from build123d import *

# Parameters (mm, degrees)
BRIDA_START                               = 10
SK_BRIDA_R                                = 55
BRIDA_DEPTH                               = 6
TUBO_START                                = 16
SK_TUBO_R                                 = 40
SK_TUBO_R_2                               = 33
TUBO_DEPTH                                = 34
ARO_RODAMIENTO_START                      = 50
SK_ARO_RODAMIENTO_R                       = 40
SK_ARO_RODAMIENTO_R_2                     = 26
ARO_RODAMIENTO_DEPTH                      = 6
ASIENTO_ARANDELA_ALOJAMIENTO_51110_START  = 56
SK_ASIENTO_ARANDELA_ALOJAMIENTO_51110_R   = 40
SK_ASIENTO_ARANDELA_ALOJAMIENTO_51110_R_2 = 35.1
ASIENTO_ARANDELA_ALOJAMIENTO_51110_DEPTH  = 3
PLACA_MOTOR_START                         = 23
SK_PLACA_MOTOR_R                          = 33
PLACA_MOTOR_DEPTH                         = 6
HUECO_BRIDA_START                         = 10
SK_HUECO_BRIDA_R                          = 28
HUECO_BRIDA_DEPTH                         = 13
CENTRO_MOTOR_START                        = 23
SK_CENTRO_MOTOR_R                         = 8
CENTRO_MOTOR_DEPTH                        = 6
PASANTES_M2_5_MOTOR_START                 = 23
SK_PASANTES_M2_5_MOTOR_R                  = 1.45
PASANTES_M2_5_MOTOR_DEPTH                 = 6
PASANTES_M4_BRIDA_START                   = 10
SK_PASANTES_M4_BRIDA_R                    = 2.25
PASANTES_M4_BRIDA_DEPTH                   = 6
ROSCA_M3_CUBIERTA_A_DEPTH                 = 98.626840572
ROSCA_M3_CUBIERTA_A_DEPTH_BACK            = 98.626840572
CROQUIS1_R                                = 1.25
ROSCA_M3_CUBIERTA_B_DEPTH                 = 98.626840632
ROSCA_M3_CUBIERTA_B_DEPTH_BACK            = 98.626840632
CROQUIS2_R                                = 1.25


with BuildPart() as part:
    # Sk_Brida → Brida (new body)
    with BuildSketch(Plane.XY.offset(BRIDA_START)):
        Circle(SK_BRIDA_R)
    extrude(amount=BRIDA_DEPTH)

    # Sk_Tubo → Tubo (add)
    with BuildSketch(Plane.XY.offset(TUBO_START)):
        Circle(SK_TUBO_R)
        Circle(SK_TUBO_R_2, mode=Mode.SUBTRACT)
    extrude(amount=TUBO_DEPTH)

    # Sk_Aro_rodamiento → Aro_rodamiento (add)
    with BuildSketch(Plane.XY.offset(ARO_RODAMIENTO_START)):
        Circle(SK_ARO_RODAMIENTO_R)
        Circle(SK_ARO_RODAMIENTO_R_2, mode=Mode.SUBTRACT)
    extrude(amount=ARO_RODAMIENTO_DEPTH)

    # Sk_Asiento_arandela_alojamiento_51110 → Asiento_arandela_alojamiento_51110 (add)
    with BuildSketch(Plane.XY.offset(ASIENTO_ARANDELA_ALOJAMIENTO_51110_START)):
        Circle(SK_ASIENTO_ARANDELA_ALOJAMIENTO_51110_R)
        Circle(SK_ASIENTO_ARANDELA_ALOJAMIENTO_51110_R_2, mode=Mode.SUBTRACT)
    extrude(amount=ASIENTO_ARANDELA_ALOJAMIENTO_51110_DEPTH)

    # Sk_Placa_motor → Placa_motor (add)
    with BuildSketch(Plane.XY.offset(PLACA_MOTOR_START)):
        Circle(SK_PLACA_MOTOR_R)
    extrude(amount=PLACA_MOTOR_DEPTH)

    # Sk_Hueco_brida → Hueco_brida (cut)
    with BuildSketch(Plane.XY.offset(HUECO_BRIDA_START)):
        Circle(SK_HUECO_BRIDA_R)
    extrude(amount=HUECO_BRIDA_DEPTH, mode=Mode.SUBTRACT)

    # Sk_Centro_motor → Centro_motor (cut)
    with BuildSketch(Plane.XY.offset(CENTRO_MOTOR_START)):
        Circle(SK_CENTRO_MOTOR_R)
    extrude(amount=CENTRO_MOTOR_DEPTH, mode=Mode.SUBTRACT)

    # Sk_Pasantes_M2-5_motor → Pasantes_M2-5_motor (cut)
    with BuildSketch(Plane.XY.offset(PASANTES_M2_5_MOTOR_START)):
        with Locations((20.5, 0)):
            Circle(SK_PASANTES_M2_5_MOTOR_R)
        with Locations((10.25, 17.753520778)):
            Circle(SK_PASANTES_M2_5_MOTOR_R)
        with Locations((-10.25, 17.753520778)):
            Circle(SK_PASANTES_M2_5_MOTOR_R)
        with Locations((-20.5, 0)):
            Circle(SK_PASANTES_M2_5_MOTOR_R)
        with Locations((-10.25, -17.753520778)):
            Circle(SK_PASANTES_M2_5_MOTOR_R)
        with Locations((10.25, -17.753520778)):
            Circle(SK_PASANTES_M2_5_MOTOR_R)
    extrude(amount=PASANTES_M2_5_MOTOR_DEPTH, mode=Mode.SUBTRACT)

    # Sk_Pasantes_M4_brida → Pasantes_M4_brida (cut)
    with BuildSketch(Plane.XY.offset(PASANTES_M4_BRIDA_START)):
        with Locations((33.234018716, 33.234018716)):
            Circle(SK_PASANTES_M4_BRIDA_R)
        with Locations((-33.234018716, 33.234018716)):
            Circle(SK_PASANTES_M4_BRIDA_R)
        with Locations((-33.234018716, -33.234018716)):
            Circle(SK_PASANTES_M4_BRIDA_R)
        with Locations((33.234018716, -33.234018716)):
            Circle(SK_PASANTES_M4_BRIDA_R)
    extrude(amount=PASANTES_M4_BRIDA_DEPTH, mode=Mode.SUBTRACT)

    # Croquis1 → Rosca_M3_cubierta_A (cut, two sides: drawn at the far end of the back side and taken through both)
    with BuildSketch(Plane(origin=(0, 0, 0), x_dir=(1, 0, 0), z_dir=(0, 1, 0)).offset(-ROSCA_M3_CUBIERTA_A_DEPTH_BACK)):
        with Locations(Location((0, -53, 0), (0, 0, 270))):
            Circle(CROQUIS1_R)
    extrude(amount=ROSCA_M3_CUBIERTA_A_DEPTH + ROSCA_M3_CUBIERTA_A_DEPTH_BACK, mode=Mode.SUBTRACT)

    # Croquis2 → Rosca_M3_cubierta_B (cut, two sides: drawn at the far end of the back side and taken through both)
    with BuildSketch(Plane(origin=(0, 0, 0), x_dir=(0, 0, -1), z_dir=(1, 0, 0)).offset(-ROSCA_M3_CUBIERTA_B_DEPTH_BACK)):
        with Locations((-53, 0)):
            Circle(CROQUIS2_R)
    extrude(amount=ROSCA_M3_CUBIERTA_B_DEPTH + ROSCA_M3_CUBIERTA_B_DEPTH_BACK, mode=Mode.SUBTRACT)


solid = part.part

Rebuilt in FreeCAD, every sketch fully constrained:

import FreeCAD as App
import Part
import Sketcher

doc = App.newDocument("Part")
body = doc.addObject("PartDesign::Body", "Body")

sketch1 = doc.addObject("Sketcher::SketchObject", "Sketch")
body.addObject(sketch1)
sketch1.AttachmentSupport = (doc.XY_Plane, [""])
sketch1.MapMode = "FlatFace"
sketch1.AttachmentOffset = App.Placement(App.Vector(0, 0, 10), App.Rotation())
sketch1.addGeometry(Part.Circle(App.Vector(0, 0, 0), App.Vector(0, 0, 1), 55), False)
sketch1.addConstraint([
    Sketcher.Constraint("Coincident", 0, 3, -1, 1),
    Sketcher.Constraint("Diameter", 0, 110.0),
])
pad1 = doc.addObject("PartDesign::Pad", "Pad")
body.addObject(pad1)
pad1.Profile = sketch1
pad1.Length = 6

sketch2 = doc.addObject("Sketcher::SketchObject", "Sketch001")
body.addObject(sketch2)
sketch2.AttachmentSupport = (doc.XY_Plane, [""])
sketch2.MapMode = "FlatFace"
sketch2.AttachmentOffset = App.Placement(App.Vector(0, 0, 16), App.Rotation())
sketch2.addGeometry([
    Part.Circle(App.Vector(0, 0, 0), App.Vector(0, 0, 1), 40),
    Part.Circle(App.Vector(0, 0, 0), App.Vector(0, 0, 1), 33),
], False)
sketch2.addConstraint([
    Sketcher.Constraint("Coincident", 0, 3, -1, 1),
    Sketcher.Constraint("Coincident", 1, 3, -1, 1),
    Sketcher.Constraint("Diameter", 0, 80.0),
    Sketcher.Constraint("Diameter", 1, 66.0),
])
pad2 = doc.addObject("PartDesign::Pad", "Pad001")
body.addObject(pad2)
pad2.Profile = sketch2
pad2.Length = 34

sketch3 = doc.addObject("Sketcher::SketchObject", "Sketch002")
body.addObject(sketch3)
sketch3.AttachmentSupport = (doc.XY_Plane, [""])
sketch3.MapMode = "FlatFace"
sketch3.AttachmentOffset = App.Placement(App.Vector(0, 0, 50), App.Rotation())
sketch3.addGeometry([
    Part.Circle(App.Vector(0, 0, 0), App.Vector(0, 0, 1), 40),
    Part.Circle(App.Vector(0, 0, 0), App.Vector(0, 0, 1), 26),
], False)
sketch3.addConstraint([
    Sketcher.Constraint("Coincident", 0, 3, -1, 1),
    Sketcher.Constraint("Coincident", 1, 3, -1, 1),
    Sketcher.Constraint("Diameter", 0, 80.0),
    Sketcher.Constraint("Diameter", 1, 52.0),
])
pad3 = doc.addObject("PartDesign::Pad", "Pad002")
body.addObject(pad3)
pad3.Profile = sketch3
pad3.Length = 6

sketch4 = doc.addObject("Sketcher::SketchObject", "Sketch003")
body.addObject(sketch4)
sketch4.AttachmentSupport = (doc.XY_Plane, [""])
sketch4.MapMode = "FlatFace"
sketch4.AttachmentOffset = App.Placement(App.Vector(0, 0, 56), App.Rotation())
sketch4.addGeometry([
    Part.Circle(App.Vector(0, 0, 0), App.Vector(0, 0, 1), 40),
    Part.Circle(App.Vector(0, 0, 0), App.Vector(0, 0, 1), 35),
], False)
sketch4.addConstraint([
    Sketcher.Constraint("Coincident", 0, 3, -1, 1),
    Sketcher.Constraint("Coincident", 1, 3, -1, 1),
    Sketcher.Constraint("Diameter", 0, 80.0),
    Sketcher.Constraint("Diameter", 1, 70.2),
])
pad4 = doc.addObject("PartDesign::Pad", "Pad003")
body.addObject(pad4)
pad4.Profile = sketch4
pad4.Length = 3

sketch5 = doc.addObject("Sketcher::SketchObject", "Sketch004")
body.addObject(sketch5)
sketch5.AttachmentSupport = (doc.XY_Plane, [""])
sketch5.MapMode = "FlatFace"
sketch5.AttachmentOffset = App.Placement(App.Vector(0, 0, 23), App.Rotation())
sketch5.addGeometry(Part.Circle(App.Vector(0, 0, 0), App.Vector(0, 0, 1), 33), False)
sketch5.addConstraint([
    Sketcher.Constraint("Coincident", 0, 3, -1, 1),
    Sketcher.Constraint("Diameter", 0, 66.0),
])
pad5 = doc.addObject("PartDesign::Pad", "Pad004")
body.addObject(pad5)
pad5.Profile = sketch5
pad5.Length = 6

sketch6 = doc.addObject("Sketcher::SketchObject", "Sketch005")
body.addObject(sketch6)
sketch6.AttachmentSupport = (doc.XY_Plane, [""])
sketch6.MapMode = "FlatFace"
sketch6.AttachmentOffset = App.Placement(App.Vector(0, 0, 10), App.Rotation())
sketch6.addGeometry(Part.Circle(App.Vector(0, 0, 0), App.Vector(0, 0, 1), 28), False)
sketch6.addConstraint([
    Sketcher.Constraint("Coincident", 0, 3, -1, 1),
    Sketcher.Constraint("Diameter", 0, 56.0),
])
pocket1 = doc.addObject("PartDesign::Pocket", "Pocket")
body.addObject(pocket1)
pocket1.Profile = sketch6
pocket1.Length = 13
pocket1.Reversed = True

sketch7 = doc.addObject("Sketcher::SketchObject", "Sketch006")
body.addObject(sketch7)
sketch7.AttachmentSupport = (doc.XY_Plane, [""])
sketch7.MapMode = "FlatFace"
sketch7.AttachmentOffset = App.Placement(App.Vector(0, 0, 23), App.Rotation())
sketch7.addGeometry(Part.Circle(App.Vector(0, 0, 0), App.Vector(0, 0, 1), 8), False)
sketch7.addConstraint([
    Sketcher.Constraint("Coincident", 0, 3, -1, 1),
    Sketcher.Constraint("Diameter", 0, 16.0),
])
pocket2 = doc.addObject("PartDesign::Pocket", "Pocket001")
body.addObject(pocket2)
pocket2.Profile = sketch7
pocket2.Length = 6
pocket2.Reversed = True

sketch8 = doc.addObject("Sketcher::SketchObject", "Sketch007")
body.addObject(sketch8)
sketch8.AttachmentSupport = (doc.XY_Plane, [""])
sketch8.MapMode = "FlatFace"
sketch8.AttachmentOffset = App.Placement(App.Vector(0, 0, 23), App.Rotation())
sketch8.addGeometry([
    Part.Circle(App.Vector(20.5, 0, 0), App.Vector(0, 0, 1), 1.4),
    Part.Circle(App.Vector(10.2, 17.8, 0), App.Vector(0, 0, 1), 1.4),
    Part.Circle(App.Vector(-10.2, 17.8, 0), App.Vector(0, 0, 1), 1.4),
    Part.Circle(App.Vector(-20.5, 0, 0), App.Vector(0, 0, 1), 1.4),
    Part.Circle(App.Vector(-10.2, -17.8, 0), App.Vector(0, 0, 1), 1.4),
    Part.Circle(App.Vector(10.2, -17.8, 0), App.Vector(0, 0, 1), 1.4),
], False)
sketch8.addConstraint([
    Sketcher.Constraint("Equal", 0, 1),
    Sketcher.Constraint("Equal", 1, 2),
    Sketcher.Constraint("Equal", 2, 3),
    Sketcher.Constraint("Equal", 3, 4),
    Sketcher.Constraint("Equal", 4, 5),
    Sketcher.Constraint("Symmetric", 0, 3, 3, 3, -1, 1),
    Sketcher.Constraint("Symmetric", 1, 3, 4, 3, -1, 1),
    Sketcher.Constraint("Symmetric", 2, 3, 5, 3, -1, 1),
    Sketcher.Constraint("Symmetric", 1, 3, 2, 3, -2),
    Sketcher.Constraint("PointOnObject", 0, 3, -1),
    Sketcher.Constraint("Diameter", 0, 2.9),
    Sketcher.Constraint("DistanceX", 3, 3, 0, 3, 41.0),
    Sketcher.Constraint("DistanceX", 2, 3, 1, 3, 20.5),
    Sketcher.Constraint("DistanceY", -1, 1, 1, 3, 17.753521),
])
pocket3 = doc.addObject("PartDesign::Pocket", "Pocket002")
body.addObject(pocket3)
pocket3.Profile = sketch8
pocket3.Length = 6
pocket3.Reversed = True

sketch9 = doc.addObject("Sketcher::SketchObject", "Sketch008")
body.addObject(sketch9)
sketch9.AttachmentSupport = (doc.XY_Plane, [""])
sketch9.MapMode = "FlatFace"
sketch9.AttachmentOffset = App.Placement(App.Vector(0, 0, 10), App.Rotation())
sketch9.addGeometry([
    Part.Circle(App.Vector(33.2, 33.2, 0), App.Vector(0, 0, 1), 2.2),
    Part.Circle(App.Vector(-33.2, 33.2, 0), App.Vector(0, 0, 1), 2.2),
    Part.Circle(App.Vector(-33.2, -33.2, 0), App.Vector(0, 0, 1), 2.2),
    Part.Circle(App.Vector(33.2, -33.2, 0), App.Vector(0, 0, 1), 2.2),
], False)
sketch9.addConstraint([
    Sketcher.Constraint("Equal", 0, 1),
    Sketcher.Constraint("Equal", 1, 2),
    Sketcher.Constraint("Equal", 2, 3),
    Sketcher.Constraint("Symmetric", 0, 3, 2, 3, -1, 1),
    Sketcher.Constraint("Symmetric", 1, 3, 3, 3, -1, 1),
    Sketcher.Constraint("Symmetric", 0, 3, 1, 3, -2),
    Sketcher.Constraint("Diameter", 0, 4.5),
    Sketcher.Constraint("DistanceX", -1, 1, 0, 3, 33.234019),
    Sketcher.Constraint("DistanceY", -1, 1, 0, 3, 33.234019),
])
pocket4 = doc.addObject("PartDesign::Pocket", "Pocket003")
body.addObject(pocket4)
pocket4.Profile = sketch9
pocket4.Length = 6
pocket4.Reversed = True

sketch10 = doc.addObject("Sketcher::SketchObject", "Sketch009")
body.addObject(sketch10)
sketch10.AttachmentSupport = (doc.XZ_Plane, [""])
sketch10.MapMode = "FlatFace"
sketch10.addGeometry(Part.Circle(App.Vector(0, 53, 0), App.Vector(0, 0, 1), 1.2), False)
sketch10.addConstraint([
    Sketcher.Constraint("PointOnObject", 0, 3, -2),
    Sketcher.Constraint("Diameter", 0, 2.5),
    Sketcher.Constraint("DistanceY", -1, 1, 0, 3, 53.0),
])
pocket5 = doc.addObject("PartDesign::Pocket", "Pocket004")
body.addObject(pocket5)
pocket5.Profile = sketch10
pocket5.Type = "ThroughAll"
pocket5.Midplane = True

sketch11 = doc.addObject("Sketcher::SketchObject", "Sketch010")
body.addObject(sketch11)
sketch11.AttachmentSupport = (doc.YZ_Plane, [""])
sketch11.MapMode = "FlatFace"
sketch11.addGeometry(Part.Circle(App.Vector(0, 53, 0), App.Vector(0, 0, 1), 1.2), False)
sketch11.addConstraint([
    Sketcher.Constraint("PointOnObject", 0, 3, -2),
    Sketcher.Constraint("Diameter", 0, 2.5),
    Sketcher.Constraint("DistanceY", -1, 1, 0, 3, 53.0),
])
pocket6 = doc.addObject("PartDesign::Pocket", "Pocket005")
body.addObject(pocket6)
pocket6.Profile = sketch11
pocket6.Type = "ThroughAll"
pocket6.Midplane = True

doc.recompute()
